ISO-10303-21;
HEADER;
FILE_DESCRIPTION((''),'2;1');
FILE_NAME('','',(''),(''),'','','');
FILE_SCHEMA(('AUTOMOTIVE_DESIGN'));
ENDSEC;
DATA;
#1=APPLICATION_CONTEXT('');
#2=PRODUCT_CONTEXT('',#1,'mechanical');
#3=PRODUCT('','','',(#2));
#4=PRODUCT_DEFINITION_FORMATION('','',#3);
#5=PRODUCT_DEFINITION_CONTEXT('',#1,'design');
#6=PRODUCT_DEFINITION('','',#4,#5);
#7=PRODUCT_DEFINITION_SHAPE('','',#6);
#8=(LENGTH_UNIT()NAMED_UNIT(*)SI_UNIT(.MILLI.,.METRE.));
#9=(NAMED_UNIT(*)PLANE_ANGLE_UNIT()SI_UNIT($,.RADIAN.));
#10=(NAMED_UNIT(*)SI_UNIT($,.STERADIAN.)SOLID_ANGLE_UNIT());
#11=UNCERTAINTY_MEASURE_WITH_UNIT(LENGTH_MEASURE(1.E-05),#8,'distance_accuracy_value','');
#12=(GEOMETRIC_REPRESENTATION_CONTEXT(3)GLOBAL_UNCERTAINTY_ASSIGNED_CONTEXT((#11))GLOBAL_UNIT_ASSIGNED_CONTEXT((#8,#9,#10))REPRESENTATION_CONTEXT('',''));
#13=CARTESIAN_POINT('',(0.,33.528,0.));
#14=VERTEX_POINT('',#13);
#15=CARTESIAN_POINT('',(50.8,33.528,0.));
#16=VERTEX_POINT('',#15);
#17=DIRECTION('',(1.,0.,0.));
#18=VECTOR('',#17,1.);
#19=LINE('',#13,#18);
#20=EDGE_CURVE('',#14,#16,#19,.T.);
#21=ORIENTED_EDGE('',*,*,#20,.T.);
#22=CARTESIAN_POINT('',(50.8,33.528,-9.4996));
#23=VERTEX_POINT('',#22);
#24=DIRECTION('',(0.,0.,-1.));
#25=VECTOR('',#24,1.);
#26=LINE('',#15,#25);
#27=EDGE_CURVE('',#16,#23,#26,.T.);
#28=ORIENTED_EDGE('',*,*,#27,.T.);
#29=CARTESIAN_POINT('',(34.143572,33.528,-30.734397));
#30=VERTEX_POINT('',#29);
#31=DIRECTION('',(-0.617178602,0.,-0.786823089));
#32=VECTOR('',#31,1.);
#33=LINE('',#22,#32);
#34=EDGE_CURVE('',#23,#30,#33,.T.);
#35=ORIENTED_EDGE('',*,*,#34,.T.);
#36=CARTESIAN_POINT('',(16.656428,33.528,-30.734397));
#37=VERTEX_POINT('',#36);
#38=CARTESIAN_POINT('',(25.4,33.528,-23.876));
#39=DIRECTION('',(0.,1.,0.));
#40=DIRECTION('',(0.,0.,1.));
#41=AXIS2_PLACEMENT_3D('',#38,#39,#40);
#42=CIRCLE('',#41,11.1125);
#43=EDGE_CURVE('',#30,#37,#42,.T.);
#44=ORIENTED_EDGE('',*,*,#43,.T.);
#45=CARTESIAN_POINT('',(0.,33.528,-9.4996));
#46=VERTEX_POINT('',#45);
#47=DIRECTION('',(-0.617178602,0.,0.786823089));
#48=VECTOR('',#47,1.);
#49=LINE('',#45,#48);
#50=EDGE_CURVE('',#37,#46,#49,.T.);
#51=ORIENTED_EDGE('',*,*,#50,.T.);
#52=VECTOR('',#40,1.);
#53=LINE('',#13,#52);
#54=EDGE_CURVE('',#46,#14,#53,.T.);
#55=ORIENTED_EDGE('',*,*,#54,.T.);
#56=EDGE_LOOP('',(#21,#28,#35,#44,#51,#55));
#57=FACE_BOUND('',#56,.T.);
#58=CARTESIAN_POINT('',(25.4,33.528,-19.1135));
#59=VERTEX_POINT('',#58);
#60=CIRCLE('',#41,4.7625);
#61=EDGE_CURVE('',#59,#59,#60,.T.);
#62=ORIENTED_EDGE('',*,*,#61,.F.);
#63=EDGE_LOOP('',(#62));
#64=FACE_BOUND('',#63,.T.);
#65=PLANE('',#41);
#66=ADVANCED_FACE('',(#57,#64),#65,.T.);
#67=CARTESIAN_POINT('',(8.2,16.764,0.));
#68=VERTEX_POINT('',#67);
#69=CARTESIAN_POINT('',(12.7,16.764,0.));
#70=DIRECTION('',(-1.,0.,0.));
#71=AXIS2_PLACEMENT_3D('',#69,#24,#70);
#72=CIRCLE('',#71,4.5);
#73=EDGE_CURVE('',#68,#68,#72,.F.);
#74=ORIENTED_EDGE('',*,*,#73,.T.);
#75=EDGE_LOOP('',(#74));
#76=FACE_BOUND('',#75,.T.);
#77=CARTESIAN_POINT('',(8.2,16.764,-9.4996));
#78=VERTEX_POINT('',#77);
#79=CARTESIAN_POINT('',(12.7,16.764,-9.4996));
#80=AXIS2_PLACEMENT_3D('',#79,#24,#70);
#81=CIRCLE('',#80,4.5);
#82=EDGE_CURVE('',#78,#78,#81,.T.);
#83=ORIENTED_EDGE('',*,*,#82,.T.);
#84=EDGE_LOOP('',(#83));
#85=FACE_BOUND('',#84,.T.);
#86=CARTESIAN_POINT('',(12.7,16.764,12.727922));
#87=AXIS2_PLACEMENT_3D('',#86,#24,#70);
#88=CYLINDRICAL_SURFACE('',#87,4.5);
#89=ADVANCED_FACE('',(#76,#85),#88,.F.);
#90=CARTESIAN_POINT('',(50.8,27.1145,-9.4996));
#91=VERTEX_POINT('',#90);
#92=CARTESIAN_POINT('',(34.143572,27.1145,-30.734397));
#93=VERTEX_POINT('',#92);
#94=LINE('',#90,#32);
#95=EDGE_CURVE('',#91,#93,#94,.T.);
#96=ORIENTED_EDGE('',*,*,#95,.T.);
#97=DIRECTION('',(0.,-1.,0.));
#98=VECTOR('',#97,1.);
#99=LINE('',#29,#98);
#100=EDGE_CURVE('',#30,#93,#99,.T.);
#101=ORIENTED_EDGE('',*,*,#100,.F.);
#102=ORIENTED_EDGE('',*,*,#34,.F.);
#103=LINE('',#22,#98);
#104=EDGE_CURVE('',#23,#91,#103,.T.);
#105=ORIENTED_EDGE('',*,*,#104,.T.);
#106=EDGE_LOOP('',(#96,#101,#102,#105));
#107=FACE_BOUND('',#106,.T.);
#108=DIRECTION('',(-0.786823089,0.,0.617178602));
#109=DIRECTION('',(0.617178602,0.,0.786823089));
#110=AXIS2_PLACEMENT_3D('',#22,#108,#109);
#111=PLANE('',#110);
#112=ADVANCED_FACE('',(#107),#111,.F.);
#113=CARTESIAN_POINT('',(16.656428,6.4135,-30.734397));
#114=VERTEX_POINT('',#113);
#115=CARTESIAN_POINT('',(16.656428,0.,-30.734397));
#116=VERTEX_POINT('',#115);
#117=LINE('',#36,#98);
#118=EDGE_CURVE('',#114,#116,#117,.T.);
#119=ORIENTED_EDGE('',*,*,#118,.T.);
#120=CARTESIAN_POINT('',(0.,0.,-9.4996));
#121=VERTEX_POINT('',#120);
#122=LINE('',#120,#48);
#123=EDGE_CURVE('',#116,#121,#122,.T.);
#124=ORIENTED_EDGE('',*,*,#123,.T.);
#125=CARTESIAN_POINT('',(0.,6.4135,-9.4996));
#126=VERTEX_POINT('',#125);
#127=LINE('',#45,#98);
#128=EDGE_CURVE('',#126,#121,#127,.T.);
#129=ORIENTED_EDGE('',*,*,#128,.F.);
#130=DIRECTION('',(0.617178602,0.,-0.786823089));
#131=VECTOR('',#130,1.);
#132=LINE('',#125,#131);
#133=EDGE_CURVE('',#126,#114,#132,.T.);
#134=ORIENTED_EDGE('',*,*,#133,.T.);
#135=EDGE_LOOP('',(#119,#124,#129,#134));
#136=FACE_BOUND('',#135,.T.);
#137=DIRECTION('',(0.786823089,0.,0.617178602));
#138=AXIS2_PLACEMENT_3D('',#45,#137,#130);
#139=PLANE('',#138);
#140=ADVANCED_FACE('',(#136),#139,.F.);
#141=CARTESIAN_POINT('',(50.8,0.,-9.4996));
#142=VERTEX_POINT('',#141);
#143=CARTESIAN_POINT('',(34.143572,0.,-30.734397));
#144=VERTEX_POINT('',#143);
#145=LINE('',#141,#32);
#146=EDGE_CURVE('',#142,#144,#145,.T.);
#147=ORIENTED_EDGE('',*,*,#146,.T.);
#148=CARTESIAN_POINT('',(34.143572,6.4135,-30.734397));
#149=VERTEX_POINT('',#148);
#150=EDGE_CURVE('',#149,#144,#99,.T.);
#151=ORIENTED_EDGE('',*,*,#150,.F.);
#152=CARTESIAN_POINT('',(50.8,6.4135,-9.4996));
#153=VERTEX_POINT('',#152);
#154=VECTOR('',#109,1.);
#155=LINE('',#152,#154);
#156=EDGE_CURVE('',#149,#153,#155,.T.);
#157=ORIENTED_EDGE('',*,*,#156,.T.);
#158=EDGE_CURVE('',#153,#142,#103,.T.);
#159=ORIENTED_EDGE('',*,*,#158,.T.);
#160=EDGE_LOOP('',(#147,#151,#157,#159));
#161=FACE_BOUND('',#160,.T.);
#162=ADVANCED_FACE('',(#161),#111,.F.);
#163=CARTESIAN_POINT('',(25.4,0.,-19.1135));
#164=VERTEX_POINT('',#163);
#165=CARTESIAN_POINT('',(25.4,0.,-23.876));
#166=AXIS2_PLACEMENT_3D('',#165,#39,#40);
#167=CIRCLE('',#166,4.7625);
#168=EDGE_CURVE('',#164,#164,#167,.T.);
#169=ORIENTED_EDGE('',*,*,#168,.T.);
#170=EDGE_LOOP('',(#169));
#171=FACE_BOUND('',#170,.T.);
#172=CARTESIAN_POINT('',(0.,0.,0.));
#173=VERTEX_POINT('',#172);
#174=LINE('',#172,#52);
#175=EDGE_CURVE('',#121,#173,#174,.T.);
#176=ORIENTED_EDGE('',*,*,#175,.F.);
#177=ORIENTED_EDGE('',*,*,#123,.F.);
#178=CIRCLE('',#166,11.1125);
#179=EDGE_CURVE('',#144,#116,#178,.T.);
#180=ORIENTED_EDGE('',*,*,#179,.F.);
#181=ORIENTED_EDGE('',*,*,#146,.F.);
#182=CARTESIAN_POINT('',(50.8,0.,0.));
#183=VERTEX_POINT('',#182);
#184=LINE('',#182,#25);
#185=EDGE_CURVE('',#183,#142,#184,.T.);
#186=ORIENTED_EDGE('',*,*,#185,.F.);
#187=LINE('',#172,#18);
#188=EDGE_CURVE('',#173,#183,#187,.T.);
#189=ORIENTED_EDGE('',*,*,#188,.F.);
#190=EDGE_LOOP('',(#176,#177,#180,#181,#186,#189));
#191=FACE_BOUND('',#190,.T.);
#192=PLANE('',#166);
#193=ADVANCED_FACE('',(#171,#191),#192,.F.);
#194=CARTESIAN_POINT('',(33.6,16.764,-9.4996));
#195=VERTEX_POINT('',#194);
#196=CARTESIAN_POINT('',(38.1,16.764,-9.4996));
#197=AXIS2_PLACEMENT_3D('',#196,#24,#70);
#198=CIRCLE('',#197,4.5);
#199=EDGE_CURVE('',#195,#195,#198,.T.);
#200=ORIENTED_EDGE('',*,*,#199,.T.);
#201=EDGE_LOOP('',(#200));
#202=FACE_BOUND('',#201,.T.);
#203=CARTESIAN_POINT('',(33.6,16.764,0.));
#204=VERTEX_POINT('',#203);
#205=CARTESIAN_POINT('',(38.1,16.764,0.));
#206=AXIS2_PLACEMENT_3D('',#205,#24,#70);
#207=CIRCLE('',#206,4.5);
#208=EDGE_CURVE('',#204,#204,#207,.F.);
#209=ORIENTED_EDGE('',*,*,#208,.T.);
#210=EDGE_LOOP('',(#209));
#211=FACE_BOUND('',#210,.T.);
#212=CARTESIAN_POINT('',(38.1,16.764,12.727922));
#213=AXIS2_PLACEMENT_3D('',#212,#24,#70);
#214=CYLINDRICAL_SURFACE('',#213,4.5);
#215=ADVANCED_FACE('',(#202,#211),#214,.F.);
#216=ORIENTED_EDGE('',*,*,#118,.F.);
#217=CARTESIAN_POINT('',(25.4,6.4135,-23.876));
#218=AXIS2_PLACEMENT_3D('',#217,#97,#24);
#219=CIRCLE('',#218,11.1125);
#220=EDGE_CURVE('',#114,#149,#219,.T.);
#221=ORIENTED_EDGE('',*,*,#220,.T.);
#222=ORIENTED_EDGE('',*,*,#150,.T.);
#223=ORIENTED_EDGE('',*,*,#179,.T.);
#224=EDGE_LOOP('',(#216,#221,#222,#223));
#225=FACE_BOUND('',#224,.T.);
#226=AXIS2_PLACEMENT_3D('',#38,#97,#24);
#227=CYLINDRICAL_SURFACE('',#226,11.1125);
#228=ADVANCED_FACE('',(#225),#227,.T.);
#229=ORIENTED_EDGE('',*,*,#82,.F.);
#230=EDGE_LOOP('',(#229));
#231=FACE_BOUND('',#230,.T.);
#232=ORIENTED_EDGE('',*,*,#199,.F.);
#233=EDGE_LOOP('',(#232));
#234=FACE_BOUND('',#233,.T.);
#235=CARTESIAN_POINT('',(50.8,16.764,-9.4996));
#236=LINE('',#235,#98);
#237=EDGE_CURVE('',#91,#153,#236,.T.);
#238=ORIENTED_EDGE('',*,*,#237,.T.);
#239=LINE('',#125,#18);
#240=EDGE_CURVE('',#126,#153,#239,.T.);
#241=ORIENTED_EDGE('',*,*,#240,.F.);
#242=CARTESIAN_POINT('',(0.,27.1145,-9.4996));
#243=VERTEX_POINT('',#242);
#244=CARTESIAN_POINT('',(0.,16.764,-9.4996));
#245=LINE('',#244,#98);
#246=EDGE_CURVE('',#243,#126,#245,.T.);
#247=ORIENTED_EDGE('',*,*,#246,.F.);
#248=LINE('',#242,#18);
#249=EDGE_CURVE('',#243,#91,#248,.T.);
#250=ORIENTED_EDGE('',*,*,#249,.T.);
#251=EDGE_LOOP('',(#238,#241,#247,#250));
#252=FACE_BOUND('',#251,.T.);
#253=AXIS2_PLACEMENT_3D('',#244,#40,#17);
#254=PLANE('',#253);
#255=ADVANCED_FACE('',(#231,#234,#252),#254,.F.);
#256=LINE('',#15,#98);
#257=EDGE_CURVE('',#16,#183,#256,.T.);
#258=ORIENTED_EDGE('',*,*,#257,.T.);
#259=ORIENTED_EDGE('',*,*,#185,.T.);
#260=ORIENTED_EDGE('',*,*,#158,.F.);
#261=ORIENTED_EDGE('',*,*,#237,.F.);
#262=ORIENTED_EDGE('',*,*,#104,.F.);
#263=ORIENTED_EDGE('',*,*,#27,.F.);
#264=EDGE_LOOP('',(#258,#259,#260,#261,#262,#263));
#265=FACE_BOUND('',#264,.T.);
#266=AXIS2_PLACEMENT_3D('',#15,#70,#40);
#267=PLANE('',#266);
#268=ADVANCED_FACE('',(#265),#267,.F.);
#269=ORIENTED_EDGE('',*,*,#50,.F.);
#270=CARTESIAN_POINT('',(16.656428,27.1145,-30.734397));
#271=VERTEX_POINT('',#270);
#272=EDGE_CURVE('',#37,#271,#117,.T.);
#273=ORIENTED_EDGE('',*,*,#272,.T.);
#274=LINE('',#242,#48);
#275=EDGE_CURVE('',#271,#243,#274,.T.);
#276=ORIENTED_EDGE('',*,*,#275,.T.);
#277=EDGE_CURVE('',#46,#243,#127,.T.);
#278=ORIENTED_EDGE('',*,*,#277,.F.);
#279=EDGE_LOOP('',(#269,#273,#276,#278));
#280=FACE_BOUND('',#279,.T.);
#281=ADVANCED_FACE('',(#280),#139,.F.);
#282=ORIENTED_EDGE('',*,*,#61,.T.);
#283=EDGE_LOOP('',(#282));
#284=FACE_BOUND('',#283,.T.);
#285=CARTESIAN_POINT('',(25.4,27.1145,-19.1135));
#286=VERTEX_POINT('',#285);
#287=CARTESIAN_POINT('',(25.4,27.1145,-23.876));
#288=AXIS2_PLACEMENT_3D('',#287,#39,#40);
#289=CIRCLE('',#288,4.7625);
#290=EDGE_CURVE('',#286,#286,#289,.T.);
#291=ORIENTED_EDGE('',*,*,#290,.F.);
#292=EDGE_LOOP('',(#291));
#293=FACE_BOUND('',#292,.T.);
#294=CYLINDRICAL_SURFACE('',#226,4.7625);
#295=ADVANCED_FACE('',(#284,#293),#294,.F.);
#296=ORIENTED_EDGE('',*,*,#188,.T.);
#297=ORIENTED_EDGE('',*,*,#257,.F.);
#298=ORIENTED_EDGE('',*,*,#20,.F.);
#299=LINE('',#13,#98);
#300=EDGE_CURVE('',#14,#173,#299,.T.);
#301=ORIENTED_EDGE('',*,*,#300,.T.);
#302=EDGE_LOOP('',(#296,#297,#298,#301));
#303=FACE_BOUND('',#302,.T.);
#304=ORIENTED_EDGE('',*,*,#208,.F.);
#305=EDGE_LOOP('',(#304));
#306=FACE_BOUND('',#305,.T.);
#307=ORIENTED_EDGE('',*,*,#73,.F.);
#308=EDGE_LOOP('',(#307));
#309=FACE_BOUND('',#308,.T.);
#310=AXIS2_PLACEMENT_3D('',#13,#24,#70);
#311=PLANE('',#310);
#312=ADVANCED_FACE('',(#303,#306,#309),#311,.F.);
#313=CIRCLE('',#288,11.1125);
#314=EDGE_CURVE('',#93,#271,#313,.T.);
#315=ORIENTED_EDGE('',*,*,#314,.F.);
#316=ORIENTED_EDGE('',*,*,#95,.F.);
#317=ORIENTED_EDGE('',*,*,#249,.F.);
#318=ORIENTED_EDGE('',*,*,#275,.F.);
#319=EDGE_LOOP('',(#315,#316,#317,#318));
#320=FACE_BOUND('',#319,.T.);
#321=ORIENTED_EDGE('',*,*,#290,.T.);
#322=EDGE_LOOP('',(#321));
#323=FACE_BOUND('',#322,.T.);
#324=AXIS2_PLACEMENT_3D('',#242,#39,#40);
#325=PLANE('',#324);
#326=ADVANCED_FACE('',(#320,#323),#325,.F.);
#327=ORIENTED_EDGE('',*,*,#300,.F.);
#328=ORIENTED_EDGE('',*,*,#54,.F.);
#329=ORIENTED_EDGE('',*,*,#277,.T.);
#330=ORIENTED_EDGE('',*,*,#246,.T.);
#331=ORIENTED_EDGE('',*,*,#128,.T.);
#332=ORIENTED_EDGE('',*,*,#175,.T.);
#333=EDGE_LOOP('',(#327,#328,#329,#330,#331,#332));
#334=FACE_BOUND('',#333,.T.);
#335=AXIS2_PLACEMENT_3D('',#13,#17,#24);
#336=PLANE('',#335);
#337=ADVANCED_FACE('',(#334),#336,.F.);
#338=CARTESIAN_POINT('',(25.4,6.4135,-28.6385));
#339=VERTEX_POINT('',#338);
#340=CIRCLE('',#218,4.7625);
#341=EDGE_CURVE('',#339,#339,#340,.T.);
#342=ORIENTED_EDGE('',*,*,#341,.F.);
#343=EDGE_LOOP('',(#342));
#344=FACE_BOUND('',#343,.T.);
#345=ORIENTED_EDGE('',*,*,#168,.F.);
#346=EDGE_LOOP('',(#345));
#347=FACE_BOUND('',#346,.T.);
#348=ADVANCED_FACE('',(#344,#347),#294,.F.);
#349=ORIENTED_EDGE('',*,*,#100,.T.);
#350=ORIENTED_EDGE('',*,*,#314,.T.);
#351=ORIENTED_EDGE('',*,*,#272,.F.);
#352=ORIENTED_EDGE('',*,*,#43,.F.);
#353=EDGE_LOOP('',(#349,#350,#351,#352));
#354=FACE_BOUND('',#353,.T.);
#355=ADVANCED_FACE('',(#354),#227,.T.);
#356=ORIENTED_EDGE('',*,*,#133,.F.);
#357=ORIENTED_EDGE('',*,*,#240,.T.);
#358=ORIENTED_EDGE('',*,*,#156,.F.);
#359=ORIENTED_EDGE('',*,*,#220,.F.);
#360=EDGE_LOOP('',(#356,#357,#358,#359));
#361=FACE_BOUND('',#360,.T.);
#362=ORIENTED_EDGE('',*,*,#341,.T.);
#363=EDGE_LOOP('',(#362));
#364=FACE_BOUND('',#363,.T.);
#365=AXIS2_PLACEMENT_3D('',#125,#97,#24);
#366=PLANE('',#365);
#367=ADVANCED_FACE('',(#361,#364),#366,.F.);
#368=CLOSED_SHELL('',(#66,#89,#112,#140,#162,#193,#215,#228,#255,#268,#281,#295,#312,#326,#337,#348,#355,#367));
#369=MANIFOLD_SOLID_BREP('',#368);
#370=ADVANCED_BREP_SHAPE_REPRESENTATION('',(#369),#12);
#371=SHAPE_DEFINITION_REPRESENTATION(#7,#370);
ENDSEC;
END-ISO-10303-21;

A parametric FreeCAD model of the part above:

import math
import FreeCAD as App
import Part
import Sketcher

V = App.Vector
Q = App.Units.Quantity

doc = App.newDocument("Part")
body = doc.addObject("PartDesign::Body", "Body")

sketch1 = body.newObject("Sketcher::SketchObject", "Sketch")
sketch1.AttachmentSupport = (doc.getObject("XZ_Plane"), [""])
sketch1.MapMode = "FlatFace"
sketch1.addGeometry([
    Part.LineSegment(V(0, 0, 0), V(50.8, 0, 0)),
    Part.LineSegment(V(50.8, 0, 0), V(50.8, -9.5, 0)),
    Part.LineSegment(V(50.8, -9.5, 0), V(34.1, -30.7, 0)),
    Part.ArcOfCircle(Part.Circle(V(25.4, -23.9, 0), V(0, 0, 1), 11.1), math.radians(-142), math.radians(-38)),
    Part.LineSegment(V(16.7, -30.7, 0), V(0, -9.5, 0)),
    Part.LineSegment(V(0, -9.5, 0), V(0, 0, 0)),
    Part.Circle(V(25.4, -23.9, 0), V(0, 0, 1), 4.8),
], False)
sketch1.addConstraint([
    Sketcher.Constraint("Coincident", 0, 2, 1, 1),
    Sketcher.Constraint("Coincident", 1, 2, 2, 1),
    Sketcher.Constraint("Tangent", 2, 2, 3, 2),
    Sketcher.Constraint("Tangent", 3, 1, 4, 1),
    Sketcher.Constraint("Coincident", 4, 2, 5, 1),
    Sketcher.Constraint("Coincident", 5, 2, 0, 1),
    Sketcher.Constraint("Horizontal", 0),
    Sketcher.Constraint("Vertical", 1),
    Sketcher.Constraint("Vertical", 5),
    Sketcher.Constraint("Coincident", 5, 2, -1, 1),
    Sketcher.Constraint("Coincident", 6, 3, 3, 3),
    Sketcher.Constraint("Horizontal", 2, 2, 3, 1),
    Sketcher.Constraint("Horizontal", 1, 2, 4, 2),
    Sketcher.Constraint("DistanceX", 0, 1, 0, 2, Q("2 in")),
    Sketcher.Constraint("Diameter", 6, Q("0.375 in")),
    Sketcher.Constraint("Radius", 3, Q("0.4375 in")),
    Sketcher.Constraint("DistanceY", 1, 2, 1, 1, Q("0.374 in")),
    Sketcher.Constraint("DistanceY", 3, 3, -1, 1, Q("0.94 in")),
])
pad1 = body.newObject("PartDesign::Pad", "Pad")
pad1.Profile = sketch1
pad1.Length = Q("1.32 in")
pad1.Reversed = True

sketch2 = body.newObject("Sketcher::SketchObject", "Sketch001")
sketch2.AttachmentSupport = (doc.getObject("YZ_Plane"), [""])
sketch2.MapMode = "FlatFace"
sketch2.AttachmentOffset = App.Placement(V(0, 0, 2 * 25.4), App.Rotation())
sketch2.addGeometry([
    Part.LineSegment(V(27, -9, 0), V(6, -9, 0)),
    Part.LineSegment(V(6, -9, 0), V(6, -35, 0)),
    Part.LineSegment(V(6, -35, 0), V(27, -35, 0)),
    Part.LineSegment(V(27, -35, 0), V(27, -9, 0)),
], False)
sketch2.addConstraint([
    Sketcher.Constraint("Coincident", 0, 2, 1, 1),
    Sketcher.Constraint("Coincident", 1, 2, 2, 1),
    Sketcher.Constraint("Coincident", 2, 2, 3, 1),
    Sketcher.Constraint("Coincident", 3, 2, 0, 1),
    Sketcher.Constraint("Horizontal", 0),
    Sketcher.Constraint("Vertical", 1),
    Sketcher.Constraint("Horizontal", 2),
    Sketcher.Constraint("Vertical", 3),
    Sketcher.Constraint("DistanceX", 0, 2, 0, 1, Q("0.815 in")),
    Sketcher.Constraint("DistanceY", 1, 2, 1, 1, Q("1.0035 in")),
    Sketcher.Constraint("DistanceY", 0, 2, -1, 1, Q("0.374 in")),
    Sketcher.Constraint("DistanceX", -1, 1, 0, 2, Q("0.2525 in")),
])
pocket1 = body.newObject("PartDesign::Pocket", "Pocket")
pocket1.Profile = sketch2
pocket1.Type = "ThroughAll"

sketch3 = body.newObject("Sketcher::SketchObject", "Sketch002")
sketch3.AttachmentSupport = (doc.getObject("XY_Plane"), [""])
sketch3.MapMode = "FlatFace"
sketch3.AttachmentOffset = App.Placement(V(0, 0, -0.374 * 25.4), App.Rotation())
sketch3.addGeometry([
    Part.Circle(V(38.1, 16.8, 0), V(0, 0, 1), 4.5),
    Part.Circle(V(12.7, 16.8, 0), V(0, 0, 1), 4.5),
], False)
sketch3.addConstraint([
    Sketcher.Constraint("Equal", 0, 1),
    Sketcher.Constraint("Horizontal", 0, 3, 1, 3),
    Sketcher.Constraint("DistanceX", 1, 3, 0, 3, Q("1 in")),
    Sketcher.Constraint("DistanceX", -1, 1, 0, 3, Q("1.5 in")),
    Sketcher.Constraint("Diameter", 0, Q("9 mm")),
    Sketcher.Constraint("DistanceY", -1, 1, 0, 3, Q("0.66 in")),
])
pocket2 = body.newObject("PartDesign::Pocket", "Pocket001")
pocket2.Profile = sketch3
pocket2.Length = Q("0.374 in")
pocket2.Reversed = True

doc.recompute()
